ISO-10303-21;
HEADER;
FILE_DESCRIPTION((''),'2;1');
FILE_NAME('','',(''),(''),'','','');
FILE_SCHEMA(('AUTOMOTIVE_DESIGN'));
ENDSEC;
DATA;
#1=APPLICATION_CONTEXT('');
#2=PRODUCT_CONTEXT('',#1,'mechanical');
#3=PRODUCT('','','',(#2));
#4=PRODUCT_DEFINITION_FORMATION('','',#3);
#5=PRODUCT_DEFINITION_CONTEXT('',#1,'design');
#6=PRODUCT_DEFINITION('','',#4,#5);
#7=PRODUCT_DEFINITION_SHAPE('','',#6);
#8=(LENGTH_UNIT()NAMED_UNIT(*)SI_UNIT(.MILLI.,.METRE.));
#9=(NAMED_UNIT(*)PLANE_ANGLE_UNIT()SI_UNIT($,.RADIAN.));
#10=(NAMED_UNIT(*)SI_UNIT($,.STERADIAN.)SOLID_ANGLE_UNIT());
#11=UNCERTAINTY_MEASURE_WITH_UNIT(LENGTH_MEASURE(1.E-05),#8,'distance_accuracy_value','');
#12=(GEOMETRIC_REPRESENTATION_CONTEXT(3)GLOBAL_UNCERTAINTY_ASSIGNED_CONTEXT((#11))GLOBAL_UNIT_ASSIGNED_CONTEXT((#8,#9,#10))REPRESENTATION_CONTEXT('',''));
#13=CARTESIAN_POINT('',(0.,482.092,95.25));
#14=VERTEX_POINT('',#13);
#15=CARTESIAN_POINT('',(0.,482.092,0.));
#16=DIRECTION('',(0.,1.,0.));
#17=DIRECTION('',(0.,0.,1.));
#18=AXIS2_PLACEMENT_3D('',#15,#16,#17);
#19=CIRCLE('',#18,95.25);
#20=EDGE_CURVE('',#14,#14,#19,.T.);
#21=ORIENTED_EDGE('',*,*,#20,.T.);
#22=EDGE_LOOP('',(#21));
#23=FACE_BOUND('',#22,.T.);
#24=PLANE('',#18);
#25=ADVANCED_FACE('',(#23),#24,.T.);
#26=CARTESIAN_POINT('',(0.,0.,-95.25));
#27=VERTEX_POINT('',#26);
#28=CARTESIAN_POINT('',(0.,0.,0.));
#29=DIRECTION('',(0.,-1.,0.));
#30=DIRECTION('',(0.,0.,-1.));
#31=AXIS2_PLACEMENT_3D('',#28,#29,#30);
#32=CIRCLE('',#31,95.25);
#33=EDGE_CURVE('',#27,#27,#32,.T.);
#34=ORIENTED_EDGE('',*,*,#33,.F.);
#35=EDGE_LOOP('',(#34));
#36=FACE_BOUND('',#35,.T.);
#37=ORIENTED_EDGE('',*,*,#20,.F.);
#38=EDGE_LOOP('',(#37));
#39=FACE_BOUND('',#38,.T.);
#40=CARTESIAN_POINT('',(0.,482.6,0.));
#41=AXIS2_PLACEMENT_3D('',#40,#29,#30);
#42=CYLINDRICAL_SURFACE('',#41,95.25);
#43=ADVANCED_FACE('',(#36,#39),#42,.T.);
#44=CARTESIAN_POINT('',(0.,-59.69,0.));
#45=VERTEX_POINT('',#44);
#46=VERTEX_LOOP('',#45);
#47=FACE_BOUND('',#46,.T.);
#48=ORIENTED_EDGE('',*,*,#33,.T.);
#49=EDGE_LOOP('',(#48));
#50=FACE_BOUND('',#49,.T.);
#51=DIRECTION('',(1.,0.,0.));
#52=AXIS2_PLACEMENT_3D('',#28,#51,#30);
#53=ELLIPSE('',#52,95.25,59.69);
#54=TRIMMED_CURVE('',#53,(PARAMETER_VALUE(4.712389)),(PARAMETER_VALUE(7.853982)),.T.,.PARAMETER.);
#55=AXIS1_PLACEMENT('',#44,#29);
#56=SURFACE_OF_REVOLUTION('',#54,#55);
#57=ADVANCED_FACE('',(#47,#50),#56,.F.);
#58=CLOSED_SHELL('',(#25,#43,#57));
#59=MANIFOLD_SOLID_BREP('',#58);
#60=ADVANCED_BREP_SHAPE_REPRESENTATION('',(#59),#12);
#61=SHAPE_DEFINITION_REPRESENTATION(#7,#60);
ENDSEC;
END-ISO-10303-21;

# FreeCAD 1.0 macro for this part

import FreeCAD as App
import Part
import Sketcher
Q = App.Units.Quantity

doc = App.newDocument("Part")
body = doc.addObject("PartDesign::Body", "Body")

# Sketch on XZ plane
sketch1 = body.newObject("Sketcher::SketchObject", "Sketch")
sketch1.AttachmentSupport = (doc.getObject("XZ_Plane"), [""])
sketch1.MapMode = "FlatFace"
sketch1.addGeometry(Part.Circle(App.Vector(0, 0, 0), App.Vector(0, 0, 1), 95), False)
sketch1.addConstraint([
    Sketcher.Constraint("Coincident", 0, 3, -1, 1),
    Sketcher.Constraint("Diameter", 0, Q("7.5 in")),
])
pad1 = body.newObject("PartDesign::Pad", "Pad")
pad1.Profile = sketch1
pad1.Length = Q("19 in")
pad1.Reversed = True

# Sketch on YZ plane
sketch2 = body.newObject("Sketcher::SketchObject", "Sketch001")
sketch2.AttachmentSupport = (doc.getObject("YZ_Plane"), [""])
sketch2.MapMode = "FlatFace"
sketch2.addGeometry([
    Part.LineSegment(App.Vector(544.576, 0, 0), App.Vector(482.6, 0, 0)),
    Part.LineSegment(App.Vector(482.6, 0, 0), App.Vector(482.6, -95.25, 0)),
    Part.BSplineCurve([App.Vector(482.6, -95.25, 0), App.Vector(544.576, -95.25, 0), App.Vector(544.576, 0, 0)], [3, 3], [0, 1.570796327], False, 2, [1, 0.707106781, 1], False),
], False)
sketch2.addConstraint([
    Sketcher.Constraint("Block", 2),
    Sketcher.Constraint("Coincident", 0, 2, 1, 1),
    Sketcher.Constraint("Coincident", 1, 2, 2, 1),
    Sketcher.Constraint("Coincident", 2, 2, 0, 1),
    Sketcher.Constraint("Horizontal", 0),
    Sketcher.Constraint("Vertical", 1),
])
revolution = body.newObject("PartDesign::Revolution", "Revolution")
revolution.Profile = sketch2
revolution.ReferenceAxis = (sketch2, ["H_Axis"])
revolution.Angle = 360

# Sketch on YZ plane
sketch3 = body.newObject("Sketcher::SketchObject", "Sketch002")
sketch3.AttachmentSupport = (doc.getObject("YZ_Plane"), [""])
sketch3.MapMode = "FlatFace"
sketch3.addGeometry([
    Part.LineSegment(App.Vector(0, 0, 0), App.Vector(-59.69, 0, 0)),
    Part.BSplineCurve([App.Vector(-59.69, 0, 0), App.Vector(-59.69, -95.25, 0), App.Vector(0, -95.25, 0)], [3, 3], [4.71238898, 6.283185307], False, 2, [1, 0.707106781, 1], False),
    Part.LineSegment(App.Vector(0, -95.25, 0), App.Vector(0, 0, 0)),
], False)
sketch3.addConstraint([
    Sketcher.Constraint("Block", 1),
    Sketcher.Constraint("Coincident", 0, 2, 1, 1),
    Sketcher.Constraint("Coincident", 1, 2, 2, 1),
    Sketcher.Constraint("Coincident", 2, 2, 0, 1),
    Sketcher.Constraint("Horizontal", 0),
    Sketcher.Constraint("Vertical", 2),
])
revolution2 = body.newObject("PartDesign::Revolution", "Revolution001")
revolution2.Profile = sketch3
revolution2.ReferenceAxis = (sketch3, ["H_Axis"])
revolution2.Angle = 360

# Sketch on XZ plane
sketch4 = body.newObject("Sketcher::SketchObject", "Sketch003")
sketch4.AttachmentSupport = (doc.getObject("XZ_Plane"), [""])
sketch4.MapMode = "FlatFace"
sketch4.AttachmentOffset = App.Placement(App.Vector(0, 0, -21.44 * 25.4), App.Rotation())
sketch4.addGeometry(Part.Circle(App.Vector(0, 0, 0), App.Vector(0, 0, 1), 95), False)
sketch4.addConstraint([
    Sketcher.Constraint("Coincident", 0, 3, -1, 1),
    Sketcher.Constraint("Diameter", 0, Q("7.5 in")),
])
pocket1 = body.newObject("PartDesign::Pocket", "Pocket")
pocket1.Profile = sketch4
pocket1.Length = Q("2.46 in")
pocket1.Reversed = True

doc.recompute()
